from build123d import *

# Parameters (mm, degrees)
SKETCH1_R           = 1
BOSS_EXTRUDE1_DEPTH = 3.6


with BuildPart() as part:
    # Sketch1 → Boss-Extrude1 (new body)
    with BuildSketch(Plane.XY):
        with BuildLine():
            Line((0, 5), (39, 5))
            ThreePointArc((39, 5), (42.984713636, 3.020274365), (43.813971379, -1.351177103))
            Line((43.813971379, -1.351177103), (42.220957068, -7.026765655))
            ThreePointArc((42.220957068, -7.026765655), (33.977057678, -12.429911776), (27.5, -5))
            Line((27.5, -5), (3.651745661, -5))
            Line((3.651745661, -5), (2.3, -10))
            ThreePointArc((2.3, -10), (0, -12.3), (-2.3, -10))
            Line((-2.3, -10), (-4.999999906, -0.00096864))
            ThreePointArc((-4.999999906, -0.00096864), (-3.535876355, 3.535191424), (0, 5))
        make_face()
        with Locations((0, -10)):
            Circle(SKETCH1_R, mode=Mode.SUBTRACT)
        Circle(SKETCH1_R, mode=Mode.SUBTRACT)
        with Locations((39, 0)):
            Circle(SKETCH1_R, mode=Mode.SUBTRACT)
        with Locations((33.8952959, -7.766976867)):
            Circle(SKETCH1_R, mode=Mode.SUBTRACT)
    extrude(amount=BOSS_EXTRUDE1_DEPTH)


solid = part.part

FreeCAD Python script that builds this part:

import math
import FreeCAD as App
import Part
import Sketcher

V = App.Vector
Q = App.Units.Quantity

doc = App.newDocument("Part")
body = doc.addObject("PartDesign::Body", "Body")

# Sketch on XY plane
sketch1 = body.newObject("Sketcher::SketchObject", "Sketch")
sketch1.AttachmentSupport = (doc.getObject("XY_Plane"), [""])
sketch1.MapMode = "FlatFace"
sketch1.addGeometry(Part.LineSegment(V(39, 5, 0), V(0, 5, 0)), False)
sketch1.addGeometry(Part.ArcOfCircle(Part.Circle(V(0, 0, 0), V(0, 0, 1), 5), math.radians(90), math.radians(180)), False)
sketch1.addGeometry(Part.LineSegment(V(-5, 0, 0), V(-2.3, -10, 0)), False)
sketch1.addGeometry(Part.ArcOfCircle(Part.Circle(V(0, -10, 0), V(0, 0, 1), 2.3), math.radians(180), math.radians(360)), False)
sketch1.addGeometry(Part.LineSegment(V(2.3, -10, 0), V(3.7, -5, 0)), False)
sketch1.addGeometry(Part.LineSegment(V(3.7, -5, 0), V(27.5, -5, 0)), False)
sketch1.addGeometry(Part.ArcOfCircle(Part.Circle(V(35, -5, 0), V(0, 0, 1), 7.5), math.radians(180), math.radians(344)), False)
sketch1.addGeometry(Part.LineSegment(V(42.2, -7, 0), V(43.8, -1.4, 0)), False)
sketch1.addGeometry(Part.ArcOfCircle(Part.Circle(V(39, 0, 0), V(0, 0, 1), 5), math.radians(-16), math.radians(90)), False)
sketch1.addGeometry(Part.Circle(V(33.9, -7.8, 0), V(0, 0, 1), 1), False)
sketch1.addGeometry(Part.Circle(V(0, -10, 0), V(0, 0, 1), 1), False)
sketch1.addGeometry(Part.Circle(V(39, 0, 0), V(0, 0, 1), 1), False)
sketch1.addGeometry(Part.Circle(V(0, 0, 0), V(0, 0, 1), 1), False)
sketch1.addConstraint(Sketcher.Constraint("Tangent", 0, 2, 1, 1))
sketch1.addConstraint(Sketcher.Constraint("Coincident", 1, 2, 2, 1))
sketch1.addConstraint(Sketcher.Constraint("Coincident", 2, 2, 3, 1))
sketch1.addConstraint(Sketcher.Constraint("Coincident", 3, 2, 4, 1))
sketch1.addConstraint(Sketcher.Constraint("Coincident", 4, 2, 5, 1))
sketch1.addConstraint(Sketcher.Constraint("Coincident", 5, 2, 6, 1))
sketch1.addConstraint(Sketcher.Constraint("Tangent", 6, 2, 7, 1))
sketch1.addConstraint(Sketcher.Constraint("Tangent", 7, 2, 8, 1))
sketch1.addConstraint(Sketcher.Constraint("Tangent", 8, 2, 0, 1))
sketch1.addConstraint(Sketcher.Constraint("Horizontal", 0))
sketch1.addConstraint(Sketcher.Constraint("Horizontal", 5))
sketch1.addConstraint(Sketcher.Constraint("Coincident", 1, 3, -1, 1))
sketch1.addConstraint(Sketcher.Constraint("Coincident", 12, 3, -1, 1))
sketch1.addConstraint(Sketcher.Constraint("Coincident", 10, 3, 3, 3))
sketch1.addConstraint(Sketcher.Constraint("Coincident", 11, 3, 8, 3))
sketch1.addConstraint(Sketcher.Constraint("Equal", 1, 8))
sketch1.addConstraint(Sketcher.Constraint("Equal", 9, 10))
sketch1.addConstraint(Sketcher.Constraint("Equal", 10, 11))
sketch1.addConstraint(Sketcher.Constraint("Equal", 11, 12))
sketch1.addConstraint(Sketcher.Constraint("Symmetric", 2, 2, 3, 2, -2))
sketch1.addConstraint(Sketcher.Constraint("Horizontal", 10, 3, 2, 2))
sketch1.addConstraint(Sketcher.Constraint("Horizontal", 6, 3, 4, 2))
sketch1.addConstraint(Sketcher.Constraint("Diameter", 9, Q("2 mm")))
sketch1.addConstraint(Sketcher.Constraint("Radius", 1, Q("5 mm")))
sketch1.addConstraint(Sketcher.Constraint("Radius", 3, Q("2.3 mm")))
sketch1.addConstraint(Sketcher.Constraint("Radius", 6, Q("7.5 mm")))
sketch1.addConstraint(Sketcher.Constraint("DistanceX", 0, 2, 0, 1, Q("39 mm")))
sketch1.addConstraint(Sketcher.Constraint("DistanceY", 3, 3, -1, 1, Q("10 mm")))
sketch1.addConstraint(Sketcher.Constraint("DistanceX", -1, 1, 6, 3, Q("35 mm")))
sketch1.addConstraint(Sketcher.Constraint("DistanceY", 6, 3, -1, 1, Q("5 mm")))
sketch1.addConstraint(Sketcher.Constraint("Distance", 4, Q("5.1795 mm")))
sketch1.addConstraint(Sketcher.Constraint("DistanceY", 9, 3, 7, 2, Q("6.4158 mm")))
sketch1.addConstraint(Sketcher.Constraint("DistanceY", 1, 2, -1, 1, Q("0.000969 mm")))
sketch1.addConstraint(Sketcher.Constraint("DistanceX", 9, 3, 6, 2, Q("8.325661 mm")))
pad1 = body.newObject("PartDesign::Pad", "Pad")
pad1.Profile = sketch1
pad1.Length = 3.6

doc.recompute()
